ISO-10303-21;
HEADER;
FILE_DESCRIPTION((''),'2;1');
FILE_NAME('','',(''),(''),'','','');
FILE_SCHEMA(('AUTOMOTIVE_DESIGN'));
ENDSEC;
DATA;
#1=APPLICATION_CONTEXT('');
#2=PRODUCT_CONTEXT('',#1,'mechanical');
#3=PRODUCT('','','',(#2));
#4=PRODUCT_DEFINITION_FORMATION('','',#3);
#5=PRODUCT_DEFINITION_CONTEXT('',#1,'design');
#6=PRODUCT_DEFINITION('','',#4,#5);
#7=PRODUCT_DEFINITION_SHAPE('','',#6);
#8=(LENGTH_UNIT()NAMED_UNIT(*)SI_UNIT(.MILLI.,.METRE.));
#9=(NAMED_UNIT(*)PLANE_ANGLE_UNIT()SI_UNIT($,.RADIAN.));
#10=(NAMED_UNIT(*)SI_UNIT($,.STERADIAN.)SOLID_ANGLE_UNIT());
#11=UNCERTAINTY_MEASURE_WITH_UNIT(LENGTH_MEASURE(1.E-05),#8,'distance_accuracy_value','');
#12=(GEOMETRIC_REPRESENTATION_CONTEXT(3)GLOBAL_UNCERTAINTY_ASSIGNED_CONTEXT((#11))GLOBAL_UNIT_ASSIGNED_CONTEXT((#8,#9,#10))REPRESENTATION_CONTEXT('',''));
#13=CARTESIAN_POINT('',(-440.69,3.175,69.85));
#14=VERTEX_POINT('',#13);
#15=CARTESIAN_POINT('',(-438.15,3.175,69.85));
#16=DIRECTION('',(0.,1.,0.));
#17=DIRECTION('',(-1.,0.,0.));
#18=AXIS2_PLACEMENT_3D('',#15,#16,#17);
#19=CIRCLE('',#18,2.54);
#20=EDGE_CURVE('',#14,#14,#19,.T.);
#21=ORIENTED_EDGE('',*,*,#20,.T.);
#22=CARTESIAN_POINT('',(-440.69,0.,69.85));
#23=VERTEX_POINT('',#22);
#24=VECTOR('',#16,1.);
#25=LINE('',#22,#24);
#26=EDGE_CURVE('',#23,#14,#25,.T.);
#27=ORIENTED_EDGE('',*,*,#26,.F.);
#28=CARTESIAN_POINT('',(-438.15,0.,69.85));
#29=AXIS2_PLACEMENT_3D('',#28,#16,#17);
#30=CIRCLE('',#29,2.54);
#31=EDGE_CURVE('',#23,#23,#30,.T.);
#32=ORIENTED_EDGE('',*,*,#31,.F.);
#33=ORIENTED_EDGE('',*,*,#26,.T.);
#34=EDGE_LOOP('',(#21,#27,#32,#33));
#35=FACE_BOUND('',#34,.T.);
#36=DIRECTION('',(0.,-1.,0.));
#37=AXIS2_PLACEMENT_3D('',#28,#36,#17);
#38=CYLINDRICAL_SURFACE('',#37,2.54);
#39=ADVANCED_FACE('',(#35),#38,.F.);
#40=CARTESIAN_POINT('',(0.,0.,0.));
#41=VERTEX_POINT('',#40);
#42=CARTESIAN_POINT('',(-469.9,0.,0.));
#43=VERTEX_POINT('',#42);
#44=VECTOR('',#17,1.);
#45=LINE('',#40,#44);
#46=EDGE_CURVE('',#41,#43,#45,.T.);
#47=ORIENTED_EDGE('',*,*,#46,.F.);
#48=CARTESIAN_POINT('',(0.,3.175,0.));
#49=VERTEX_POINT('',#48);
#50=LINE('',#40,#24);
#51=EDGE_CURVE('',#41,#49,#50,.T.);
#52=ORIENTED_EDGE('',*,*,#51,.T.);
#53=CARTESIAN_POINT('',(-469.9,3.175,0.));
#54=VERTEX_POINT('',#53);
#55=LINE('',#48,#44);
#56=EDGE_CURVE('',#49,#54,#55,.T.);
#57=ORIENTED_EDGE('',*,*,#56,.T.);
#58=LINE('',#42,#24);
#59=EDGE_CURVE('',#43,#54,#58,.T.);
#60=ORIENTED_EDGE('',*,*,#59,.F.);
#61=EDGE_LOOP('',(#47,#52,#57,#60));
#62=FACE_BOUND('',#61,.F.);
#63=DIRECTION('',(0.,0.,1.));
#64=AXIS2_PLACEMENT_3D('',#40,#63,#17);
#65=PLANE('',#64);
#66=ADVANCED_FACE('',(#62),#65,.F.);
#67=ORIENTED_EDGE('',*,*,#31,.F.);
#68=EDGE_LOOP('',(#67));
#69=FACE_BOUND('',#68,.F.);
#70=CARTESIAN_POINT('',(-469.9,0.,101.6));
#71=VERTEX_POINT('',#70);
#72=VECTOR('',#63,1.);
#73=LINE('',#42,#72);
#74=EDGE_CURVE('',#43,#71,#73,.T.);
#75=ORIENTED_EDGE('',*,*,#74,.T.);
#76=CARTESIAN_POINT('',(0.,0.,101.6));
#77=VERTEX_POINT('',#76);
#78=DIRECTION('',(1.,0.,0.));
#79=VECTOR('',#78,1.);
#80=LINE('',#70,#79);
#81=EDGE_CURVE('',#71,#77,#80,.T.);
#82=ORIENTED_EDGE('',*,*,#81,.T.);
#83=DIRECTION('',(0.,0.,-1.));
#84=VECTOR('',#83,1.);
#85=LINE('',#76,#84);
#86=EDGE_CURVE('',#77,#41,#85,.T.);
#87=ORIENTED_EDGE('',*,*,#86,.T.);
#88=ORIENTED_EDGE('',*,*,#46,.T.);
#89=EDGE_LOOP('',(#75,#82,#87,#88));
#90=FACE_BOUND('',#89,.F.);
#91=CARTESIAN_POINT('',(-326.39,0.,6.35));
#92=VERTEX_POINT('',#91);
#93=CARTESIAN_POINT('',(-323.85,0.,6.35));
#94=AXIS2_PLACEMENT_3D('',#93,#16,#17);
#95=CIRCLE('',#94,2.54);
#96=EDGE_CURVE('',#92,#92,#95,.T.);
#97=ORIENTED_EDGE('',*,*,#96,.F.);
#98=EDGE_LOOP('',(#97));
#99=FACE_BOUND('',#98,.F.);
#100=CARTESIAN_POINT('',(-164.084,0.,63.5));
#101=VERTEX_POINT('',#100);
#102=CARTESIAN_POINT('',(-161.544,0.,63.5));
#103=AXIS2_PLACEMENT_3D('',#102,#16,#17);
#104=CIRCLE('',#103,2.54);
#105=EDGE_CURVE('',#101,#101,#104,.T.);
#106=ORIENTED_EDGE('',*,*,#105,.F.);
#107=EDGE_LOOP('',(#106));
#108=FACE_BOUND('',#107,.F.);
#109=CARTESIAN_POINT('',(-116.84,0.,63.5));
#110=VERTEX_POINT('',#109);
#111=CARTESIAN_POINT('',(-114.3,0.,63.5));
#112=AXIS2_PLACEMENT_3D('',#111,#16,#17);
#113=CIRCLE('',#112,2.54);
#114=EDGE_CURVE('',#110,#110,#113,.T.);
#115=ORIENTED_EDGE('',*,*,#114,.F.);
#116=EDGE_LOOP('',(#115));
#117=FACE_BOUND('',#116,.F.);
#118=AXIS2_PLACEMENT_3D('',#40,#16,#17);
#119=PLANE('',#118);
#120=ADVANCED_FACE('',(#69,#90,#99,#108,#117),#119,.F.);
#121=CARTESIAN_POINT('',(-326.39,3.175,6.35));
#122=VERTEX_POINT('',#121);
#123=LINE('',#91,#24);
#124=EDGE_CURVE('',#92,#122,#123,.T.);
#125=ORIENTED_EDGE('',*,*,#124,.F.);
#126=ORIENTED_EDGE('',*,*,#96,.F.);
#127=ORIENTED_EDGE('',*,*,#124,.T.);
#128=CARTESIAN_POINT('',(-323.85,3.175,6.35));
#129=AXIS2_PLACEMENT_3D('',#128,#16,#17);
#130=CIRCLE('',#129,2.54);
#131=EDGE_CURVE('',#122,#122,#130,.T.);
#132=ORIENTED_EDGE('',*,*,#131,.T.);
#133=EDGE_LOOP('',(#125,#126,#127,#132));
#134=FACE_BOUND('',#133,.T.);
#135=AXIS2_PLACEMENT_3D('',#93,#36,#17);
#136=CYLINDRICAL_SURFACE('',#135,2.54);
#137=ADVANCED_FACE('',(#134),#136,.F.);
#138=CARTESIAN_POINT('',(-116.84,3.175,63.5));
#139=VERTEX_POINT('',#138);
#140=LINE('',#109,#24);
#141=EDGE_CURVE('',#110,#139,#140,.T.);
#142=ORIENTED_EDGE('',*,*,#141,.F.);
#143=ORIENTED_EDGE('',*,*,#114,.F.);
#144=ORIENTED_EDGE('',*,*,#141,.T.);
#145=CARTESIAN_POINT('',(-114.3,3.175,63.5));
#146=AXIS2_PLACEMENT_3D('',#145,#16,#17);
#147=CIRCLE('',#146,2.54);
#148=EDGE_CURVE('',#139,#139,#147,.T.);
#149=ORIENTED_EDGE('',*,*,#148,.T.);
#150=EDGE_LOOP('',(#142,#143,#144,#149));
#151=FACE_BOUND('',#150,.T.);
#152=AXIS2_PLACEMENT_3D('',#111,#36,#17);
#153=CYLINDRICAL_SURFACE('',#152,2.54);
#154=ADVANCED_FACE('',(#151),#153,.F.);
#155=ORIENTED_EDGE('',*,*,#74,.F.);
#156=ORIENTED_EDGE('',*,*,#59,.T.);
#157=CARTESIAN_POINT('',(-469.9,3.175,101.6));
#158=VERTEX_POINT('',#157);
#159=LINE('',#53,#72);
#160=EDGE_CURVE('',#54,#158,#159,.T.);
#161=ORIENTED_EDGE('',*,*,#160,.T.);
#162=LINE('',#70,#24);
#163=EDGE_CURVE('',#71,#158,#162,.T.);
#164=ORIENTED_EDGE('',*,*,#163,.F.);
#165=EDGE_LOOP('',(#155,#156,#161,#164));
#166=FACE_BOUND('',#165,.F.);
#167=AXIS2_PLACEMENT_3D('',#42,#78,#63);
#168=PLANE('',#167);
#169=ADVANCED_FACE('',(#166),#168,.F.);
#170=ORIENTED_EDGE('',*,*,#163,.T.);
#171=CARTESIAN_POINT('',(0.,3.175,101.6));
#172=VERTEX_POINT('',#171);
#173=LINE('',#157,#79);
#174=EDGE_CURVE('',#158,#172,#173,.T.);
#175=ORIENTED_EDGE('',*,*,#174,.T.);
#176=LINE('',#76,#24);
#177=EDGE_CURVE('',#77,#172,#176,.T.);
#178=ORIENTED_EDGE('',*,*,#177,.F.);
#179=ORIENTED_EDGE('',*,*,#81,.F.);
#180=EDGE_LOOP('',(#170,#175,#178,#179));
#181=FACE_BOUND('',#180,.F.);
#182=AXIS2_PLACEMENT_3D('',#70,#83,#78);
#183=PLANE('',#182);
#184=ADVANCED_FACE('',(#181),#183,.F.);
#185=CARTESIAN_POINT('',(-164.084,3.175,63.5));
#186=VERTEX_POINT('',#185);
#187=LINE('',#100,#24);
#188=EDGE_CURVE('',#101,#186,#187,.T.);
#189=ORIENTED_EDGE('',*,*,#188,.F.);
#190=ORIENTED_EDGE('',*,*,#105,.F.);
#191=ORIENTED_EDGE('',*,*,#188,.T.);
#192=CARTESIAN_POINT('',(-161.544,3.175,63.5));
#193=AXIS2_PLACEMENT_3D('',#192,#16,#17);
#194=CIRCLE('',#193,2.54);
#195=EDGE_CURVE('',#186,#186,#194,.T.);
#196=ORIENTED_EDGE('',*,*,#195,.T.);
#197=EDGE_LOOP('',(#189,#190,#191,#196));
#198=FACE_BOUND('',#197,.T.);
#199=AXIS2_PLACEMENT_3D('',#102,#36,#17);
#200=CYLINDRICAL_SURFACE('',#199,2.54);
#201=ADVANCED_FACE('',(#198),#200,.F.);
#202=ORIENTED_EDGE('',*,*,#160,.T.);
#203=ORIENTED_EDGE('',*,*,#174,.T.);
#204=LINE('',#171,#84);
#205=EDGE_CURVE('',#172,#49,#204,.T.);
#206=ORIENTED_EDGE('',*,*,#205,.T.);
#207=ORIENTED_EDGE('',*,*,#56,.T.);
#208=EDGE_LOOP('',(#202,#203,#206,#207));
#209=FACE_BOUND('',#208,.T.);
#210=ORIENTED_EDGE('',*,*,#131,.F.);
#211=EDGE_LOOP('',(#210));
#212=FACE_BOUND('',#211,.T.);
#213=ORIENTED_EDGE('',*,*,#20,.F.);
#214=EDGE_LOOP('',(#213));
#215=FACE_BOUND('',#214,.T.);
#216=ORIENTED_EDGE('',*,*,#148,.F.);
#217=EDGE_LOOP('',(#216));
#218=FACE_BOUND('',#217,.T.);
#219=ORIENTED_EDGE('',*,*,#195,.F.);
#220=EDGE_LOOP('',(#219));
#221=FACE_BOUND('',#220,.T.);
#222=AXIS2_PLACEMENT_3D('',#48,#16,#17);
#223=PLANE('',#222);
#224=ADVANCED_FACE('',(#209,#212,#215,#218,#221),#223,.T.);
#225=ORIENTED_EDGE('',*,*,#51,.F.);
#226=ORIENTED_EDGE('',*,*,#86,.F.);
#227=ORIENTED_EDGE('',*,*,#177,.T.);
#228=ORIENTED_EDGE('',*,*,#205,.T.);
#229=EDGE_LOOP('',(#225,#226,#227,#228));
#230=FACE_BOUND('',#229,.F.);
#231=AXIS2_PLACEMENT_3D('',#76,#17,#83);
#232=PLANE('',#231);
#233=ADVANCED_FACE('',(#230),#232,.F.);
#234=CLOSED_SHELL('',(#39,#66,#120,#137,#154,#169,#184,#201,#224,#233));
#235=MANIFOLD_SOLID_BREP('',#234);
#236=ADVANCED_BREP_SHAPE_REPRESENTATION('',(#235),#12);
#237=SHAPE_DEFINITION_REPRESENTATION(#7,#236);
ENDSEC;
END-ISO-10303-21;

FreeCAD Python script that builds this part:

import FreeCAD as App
import Part
import Sketcher
from FreeCAD import Vector
Q = App.Units.Quantity

doc = App.newDocument("Part")
body = doc.addObject("PartDesign::Body", "Body")

sketch1 = body.newObject("Sketcher::SketchObject", "Sketch")
sketch1.AttachmentSupport = (doc.getObject("XZ_Plane"), [""])
sketch1.MapMode = "FlatFace"
sketch1.addGeometry(Part.LineSegment(Vector(0, 101.6, 0), Vector(0, 0, 0)), False)
sketch1.addGeometry(Part.LineSegment(Vector(0, 0, 0), Vector(-469.9, 0, 0)), False)
sketch1.addGeometry(Part.LineSegment(Vector(-469.9, 0, 0), Vector(-469.9, 101.6, 0)), False)
sketch1.addGeometry(Part.LineSegment(Vector(-469.9, 101.6, 0), Vector(0, 101.6, 0)), False)
sketch1.addGeometry(Part.Circle(Vector(-323.9, 6.3, 0), Vector(0, 0, 1), 2.5), False)
sketch1.addGeometry(Part.Circle(Vector(-114.3, 63.5, 0), Vector(0, 0, 1), 2.5), False)
sketch1.addGeometry(Part.Circle(Vector(-161.5, 63.5, 0), Vector(0, 0, 1), 2.5), False)
sketch1.addGeometry(Part.Circle(Vector(-438.1, 69.8, 0), Vector(0, 0, 1), 2.5), False)
sketch1.addConstraint(Sketcher.Constraint("Coincident", 0, 2, 1, 1))
sketch1.addConstraint(Sketcher.Constraint("Coincident", 1, 2, 2, 1))
sketch1.addConstraint(Sketcher.Constraint("Coincident", 2, 2, 3, 1))
sketch1.addConstraint(Sketcher.Constraint("Coincident", 3, 2, 0, 1))
sketch1.addConstraint(Sketcher.Constraint("Vertical", 0))
sketch1.addConstraint(Sketcher.Constraint("Horizontal", 1))
sketch1.addConstraint(Sketcher.Constraint("Vertical", 2))
sketch1.addConstraint(Sketcher.Constraint("Horizontal", 3))
sketch1.addConstraint(Sketcher.Constraint("Coincident", 0, 2, -1, 1))
sketch1.addConstraint(Sketcher.Constraint("Equal", 4, 5))
sketch1.addConstraint(Sketcher.Constraint("Equal", 5, 6))
sketch1.addConstraint(Sketcher.Constraint("Equal", 6, 7))
sketch1.addConstraint(Sketcher.Constraint("Horizontal", 5, 3, 6, 3))
sketch1.addConstraint(Sketcher.Constraint("Diameter", 4, Q("0.2 in")))
sketch1.addConstraint(Sketcher.Constraint("DistanceY", 0, 2, 0, 1, Q("4 in")))
sketch1.addConstraint(Sketcher.Constraint("DistanceX", 1, 2, 1, 1, Q("18.5 in")))
sketch1.addConstraint(Sketcher.Constraint("DistanceX", 5, 3, -1, 1, Q("4.5 in")))
sketch1.addConstraint(Sketcher.Constraint("DistanceY", -1, 1, 5, 3, Q("2.5 in")))
sketch1.addConstraint(Sketcher.Constraint("DistanceX", 7, 3, 4, 3, Q("4.5 in")))
sketch1.addConstraint(Sketcher.Constraint("DistanceY", 4, 3, 7, 3, Q("2.5 in")))
sketch1.addConstraint(Sketcher.Constraint("DistanceY", -1, 1, 4, 3, Q("0.25 in")))
sketch1.addConstraint(Sketcher.Constraint("DistanceX", 6, 3, 5, 3, Q("1.86 in")))
sketch1.addConstraint(Sketcher.Constraint("DistanceX", 1, 2, 7, 3, Q("1.25 in")))
pad1 = body.newObject("PartDesign::Pad", "Pad")
pad1.Profile = sketch1
pad1.Length = Q("0.125 in")
pad1.Reversed = True

doc.recompute()
